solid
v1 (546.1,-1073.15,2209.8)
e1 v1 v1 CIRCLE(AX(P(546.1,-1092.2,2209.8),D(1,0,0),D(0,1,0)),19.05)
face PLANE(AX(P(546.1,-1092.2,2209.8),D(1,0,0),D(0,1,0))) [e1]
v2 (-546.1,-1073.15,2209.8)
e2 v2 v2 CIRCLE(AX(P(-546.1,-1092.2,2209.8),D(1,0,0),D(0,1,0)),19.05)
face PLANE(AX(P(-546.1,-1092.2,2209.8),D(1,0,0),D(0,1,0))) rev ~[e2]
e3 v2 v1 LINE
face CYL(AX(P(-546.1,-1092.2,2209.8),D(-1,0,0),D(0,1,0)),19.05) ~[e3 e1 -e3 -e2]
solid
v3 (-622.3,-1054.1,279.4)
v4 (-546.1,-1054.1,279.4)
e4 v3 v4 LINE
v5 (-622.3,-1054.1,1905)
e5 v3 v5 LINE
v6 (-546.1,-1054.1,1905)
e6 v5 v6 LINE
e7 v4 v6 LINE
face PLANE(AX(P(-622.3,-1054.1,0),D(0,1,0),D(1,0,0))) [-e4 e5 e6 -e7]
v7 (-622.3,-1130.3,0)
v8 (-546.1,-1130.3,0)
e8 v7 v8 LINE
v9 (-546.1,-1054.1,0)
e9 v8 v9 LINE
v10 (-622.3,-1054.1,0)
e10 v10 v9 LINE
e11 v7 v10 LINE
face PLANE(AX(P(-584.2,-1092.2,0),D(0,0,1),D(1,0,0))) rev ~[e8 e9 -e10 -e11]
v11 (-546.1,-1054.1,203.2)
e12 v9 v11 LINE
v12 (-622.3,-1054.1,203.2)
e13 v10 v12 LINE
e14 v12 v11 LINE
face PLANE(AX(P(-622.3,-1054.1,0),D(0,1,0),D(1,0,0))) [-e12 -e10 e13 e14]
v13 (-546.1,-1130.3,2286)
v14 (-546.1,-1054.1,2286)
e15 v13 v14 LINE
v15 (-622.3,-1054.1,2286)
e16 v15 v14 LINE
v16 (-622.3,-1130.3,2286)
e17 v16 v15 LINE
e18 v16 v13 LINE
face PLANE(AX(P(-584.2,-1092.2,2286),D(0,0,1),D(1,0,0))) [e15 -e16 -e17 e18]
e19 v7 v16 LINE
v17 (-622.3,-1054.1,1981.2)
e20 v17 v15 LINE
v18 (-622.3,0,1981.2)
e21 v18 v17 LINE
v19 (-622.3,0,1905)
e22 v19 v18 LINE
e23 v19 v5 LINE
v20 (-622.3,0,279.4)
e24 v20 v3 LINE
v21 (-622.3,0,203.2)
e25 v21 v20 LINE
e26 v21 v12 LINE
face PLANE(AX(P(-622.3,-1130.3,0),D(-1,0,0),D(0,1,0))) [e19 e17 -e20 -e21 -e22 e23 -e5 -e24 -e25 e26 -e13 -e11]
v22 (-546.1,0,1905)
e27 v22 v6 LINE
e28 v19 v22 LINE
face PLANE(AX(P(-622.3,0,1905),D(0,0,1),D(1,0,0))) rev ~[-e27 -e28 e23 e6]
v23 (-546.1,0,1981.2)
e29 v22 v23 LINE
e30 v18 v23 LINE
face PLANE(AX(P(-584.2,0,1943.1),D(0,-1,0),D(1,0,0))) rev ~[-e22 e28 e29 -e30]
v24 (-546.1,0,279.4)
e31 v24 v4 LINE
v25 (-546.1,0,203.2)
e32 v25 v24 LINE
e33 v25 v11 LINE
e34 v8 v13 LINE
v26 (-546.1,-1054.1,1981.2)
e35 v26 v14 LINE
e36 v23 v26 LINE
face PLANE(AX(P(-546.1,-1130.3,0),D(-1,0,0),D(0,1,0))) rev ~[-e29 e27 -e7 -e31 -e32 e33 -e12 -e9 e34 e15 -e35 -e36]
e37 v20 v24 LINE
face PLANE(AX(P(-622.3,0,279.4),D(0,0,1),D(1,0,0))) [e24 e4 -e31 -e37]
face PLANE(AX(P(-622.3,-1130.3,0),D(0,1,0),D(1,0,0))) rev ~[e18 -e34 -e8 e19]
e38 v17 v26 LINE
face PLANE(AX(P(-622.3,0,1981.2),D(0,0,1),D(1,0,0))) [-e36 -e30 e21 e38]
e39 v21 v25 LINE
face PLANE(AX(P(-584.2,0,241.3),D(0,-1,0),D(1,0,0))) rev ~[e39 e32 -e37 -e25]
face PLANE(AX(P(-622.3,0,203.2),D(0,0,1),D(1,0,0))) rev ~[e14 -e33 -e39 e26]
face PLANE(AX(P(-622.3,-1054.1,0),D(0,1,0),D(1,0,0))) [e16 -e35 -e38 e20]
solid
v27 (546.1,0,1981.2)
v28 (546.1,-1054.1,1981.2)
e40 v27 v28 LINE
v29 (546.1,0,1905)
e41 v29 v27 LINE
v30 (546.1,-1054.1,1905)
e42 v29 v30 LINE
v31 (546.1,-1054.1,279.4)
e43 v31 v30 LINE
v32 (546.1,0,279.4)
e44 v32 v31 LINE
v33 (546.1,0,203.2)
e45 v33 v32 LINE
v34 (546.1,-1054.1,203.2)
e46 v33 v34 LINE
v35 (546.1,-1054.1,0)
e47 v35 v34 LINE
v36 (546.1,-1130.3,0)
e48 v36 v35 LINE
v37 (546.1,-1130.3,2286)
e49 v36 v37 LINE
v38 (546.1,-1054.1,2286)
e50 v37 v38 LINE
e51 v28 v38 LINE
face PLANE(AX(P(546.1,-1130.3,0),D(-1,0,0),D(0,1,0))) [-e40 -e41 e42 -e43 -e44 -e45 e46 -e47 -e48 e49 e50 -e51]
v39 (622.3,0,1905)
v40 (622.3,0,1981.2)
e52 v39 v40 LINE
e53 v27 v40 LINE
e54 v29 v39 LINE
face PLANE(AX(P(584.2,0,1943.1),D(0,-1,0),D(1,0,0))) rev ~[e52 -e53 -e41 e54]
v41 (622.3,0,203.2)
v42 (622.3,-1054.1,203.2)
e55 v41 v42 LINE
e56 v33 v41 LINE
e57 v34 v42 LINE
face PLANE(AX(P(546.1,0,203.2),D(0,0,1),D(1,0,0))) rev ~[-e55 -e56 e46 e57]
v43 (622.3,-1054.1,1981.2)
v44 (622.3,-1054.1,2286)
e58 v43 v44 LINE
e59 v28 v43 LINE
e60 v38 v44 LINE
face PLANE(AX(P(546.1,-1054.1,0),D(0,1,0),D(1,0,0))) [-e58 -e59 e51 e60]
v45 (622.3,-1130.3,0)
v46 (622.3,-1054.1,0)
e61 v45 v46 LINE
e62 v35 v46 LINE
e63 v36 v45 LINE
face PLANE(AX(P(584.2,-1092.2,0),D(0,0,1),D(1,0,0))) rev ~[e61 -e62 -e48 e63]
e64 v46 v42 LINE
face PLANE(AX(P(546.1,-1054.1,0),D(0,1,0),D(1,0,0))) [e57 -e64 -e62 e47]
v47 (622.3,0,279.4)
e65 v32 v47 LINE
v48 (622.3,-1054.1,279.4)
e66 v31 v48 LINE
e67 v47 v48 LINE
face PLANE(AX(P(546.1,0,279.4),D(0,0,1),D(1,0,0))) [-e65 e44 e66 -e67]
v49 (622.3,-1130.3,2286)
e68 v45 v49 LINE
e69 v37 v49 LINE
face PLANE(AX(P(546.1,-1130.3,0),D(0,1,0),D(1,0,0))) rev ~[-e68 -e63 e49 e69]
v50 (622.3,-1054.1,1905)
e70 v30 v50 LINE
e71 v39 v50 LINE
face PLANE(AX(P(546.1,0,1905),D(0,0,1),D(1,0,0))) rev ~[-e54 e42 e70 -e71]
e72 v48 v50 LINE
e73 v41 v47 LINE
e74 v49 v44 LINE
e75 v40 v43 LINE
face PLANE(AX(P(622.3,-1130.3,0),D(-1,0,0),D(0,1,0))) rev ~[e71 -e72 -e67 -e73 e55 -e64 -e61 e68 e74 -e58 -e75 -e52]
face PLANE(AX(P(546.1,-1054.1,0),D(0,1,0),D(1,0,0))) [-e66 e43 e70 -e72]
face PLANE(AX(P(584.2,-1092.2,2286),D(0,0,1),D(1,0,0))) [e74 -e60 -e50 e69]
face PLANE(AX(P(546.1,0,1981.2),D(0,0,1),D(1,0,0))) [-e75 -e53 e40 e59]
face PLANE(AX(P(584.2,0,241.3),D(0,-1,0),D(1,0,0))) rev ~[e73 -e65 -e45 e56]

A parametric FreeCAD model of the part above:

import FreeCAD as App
import Part
import Sketcher
from FreeCAD import Vector
Q = App.Units.Quantity

doc = App.newDocument("Part")
body = doc.addObject("PartDesign::Body", "Body")

sketch1 = body.newObject("Sketcher::SketchObject", "Sketch")
sketch1.AttachmentSupport = (doc.getObject("XY_Plane"), [""])
sketch1.MapMode = "FlatFace"
sketch1.addGeometry([
    Part.LineSegment(Vector(-622, -1054, 0), Vector(-622, -1130, 0)),
    Part.LineSegment(Vector(-622, -1130, 0), Vector(-546, -1130, 0)),
    Part.LineSegment(Vector(-546, -1130, 0), Vector(-546, -1054, 0)),
    Part.LineSegment(Vector(-546, -1054, 0), Vector(-622, -1054, 0)),
], False)
sketch1.addConstraint([
    Sketcher.Constraint("Coincident", 0, 2, 1, 1),
    Sketcher.Constraint("Coincident", 1, 2, 2, 1),
    Sketcher.Constraint("Coincident", 2, 2, 3, 1),
    Sketcher.Constraint("Coincident", 3, 2, 0, 1),
    Sketcher.Constraint("Vertical", 0),
    Sketcher.Constraint("Horizontal", 1),
    Sketcher.Constraint("Vertical", 2),
    Sketcher.Constraint("Horizontal", 3),
    Sketcher.Constraint("Equal", 3, 0),
    Sketcher.Constraint("DistanceX", 1, 1, 1, 2, Q("3 in")),
    Sketcher.Constraint("DistanceX", 0, 2, -1, 1, Q("24.5 in")),
    Sketcher.Constraint("DistanceY", 0, 2, -1, 1, Q("44.5 in")),
])
pad1 = body.newObject("PartDesign::Pad", "Pad")
pad1.Profile = sketch1
pad1.Length = Q("90 in")

sketch2 = body.newObject("Sketcher::SketchObject", "Sketch001")
sketch2.AttachmentSupport = (doc.getObject("XZ_Plane"), [""])
sketch2.MapMode = "FlatFace"
sketch2.addGeometry([
    Part.LineSegment(Vector(-622, 1981, 0), Vector(-622, 1905, 0)),
    Part.LineSegment(Vector(-622, 1905, 0), Vector(-546, 1905, 0)),
    Part.LineSegment(Vector(-546, 1905, 0), Vector(-546, 1981, 0)),
    Part.LineSegment(Vector(-546, 1981, 0), Vector(-622, 1981, 0)),
    Part.LineSegment(Vector(-622, 279, 0), Vector(-622, 203, 0)),
    Part.LineSegment(Vector(-622, 203, 0), Vector(-546, 203, 0)),
    Part.LineSegment(Vector(-546, 203, 0), Vector(-546, 279, 0)),
    Part.LineSegment(Vector(-546, 279, 0), Vector(-622, 279, 0)),
], False)
sketch2.addConstraint([
    Sketcher.Constraint("Coincident", 0, 2, 1, 1),
    Sketcher.Constraint("Coincident", 1, 2, 2, 1),
    Sketcher.Constraint("Coincident", 2, 2, 3, 1),
    Sketcher.Constraint("Coincident", 3, 2, 0, 1),
    Sketcher.Constraint("Coincident", 4, 2, 5, 1),
    Sketcher.Constraint("Coincident", 5, 2, 6, 1),
    Sketcher.Constraint("Coincident", 6, 2, 7, 1),
    Sketcher.Constraint("Coincident", 7, 2, 4, 1),
    Sketcher.Constraint("Vertical", 0),
    Sketcher.Constraint("Horizontal", 1),
    Sketcher.Constraint("Vertical", 2),
    Sketcher.Constraint("Horizontal", 3),
    Sketcher.Constraint("Vertical", 4),
    Sketcher.Constraint("Horizontal", 5),
    Sketcher.Constraint("Vertical", 6),
    Sketcher.Constraint("Horizontal", 7),
    Sketcher.Constraint("Vertical", 3, 2, 4, 2),
    Sketcher.Constraint("Vertical", 2, 2, 5, 2),
    Sketcher.Constraint("Equal", 7, 0),
    Sketcher.Constraint("Equal", 2, 4),
    Sketcher.Constraint("DistanceX", 1, 1, 1, 2, Q("3 in")),
    Sketcher.Constraint("DistanceY", -1, 1, 0, 2, Q("75 in")),
    Sketcher.Constraint("DistanceY", -1, 1, 4, 2, Q("8 in")),
    Sketcher.Constraint("DistanceX", 0, 2, -1, 1, Q("24.5 in")),
])
pad2 = body.newObject("PartDesign::Pad", "Pad001")
pad2.Profile = sketch2
pad2.Type = "UpToLast"
body2 = doc.addObject("PartDesign::Body", "Body001")

sketch3 = body2.newObject("Sketcher::SketchObject", "Sketch002")
sketch3.AttachmentSupport = (doc.getObject("XY_Plane001"), [""])
sketch3.MapMode = "FlatFace"
sketch3.addGeometry([
    Part.LineSegment(Vector(546, -1054, 0), Vector(546, -1130, 0)),
    Part.LineSegment(Vector(546, -1130, 0), Vector(622, -1130, 0)),
    Part.LineSegment(Vector(622, -1130, 0), Vector(622, -1054, 0)),
    Part.LineSegment(Vector(622, -1054, 0), Vector(546, -1054, 0)),
], False)
sketch3.addConstraint([
    Sketcher.Constraint("Coincident", 0, 2, 1, 1),
    Sketcher.Constraint("Coincident", 1, 2, 2, 1),
    Sketcher.Constraint("Coincident", 2, 2, 3, 1),
    Sketcher.Constraint("Coincident", 3, 2, 0, 1),
    Sketcher.Constraint("Vertical", 0),
    Sketcher.Constraint("Horizontal", 1),
    Sketcher.Constraint("Vertical", 2),
    Sketcher.Constraint("Horizontal", 3),
    Sketcher.Constraint("Equal", 3, 0),
    Sketcher.Constraint("DistanceX", 1, 1, 1, 2, Q("3 in")),
    Sketcher.Constraint("DistanceX", -1, 1, 0, 2, Q("21.5 in")),
    Sketcher.Constraint("DistanceY", 0, 2, -1, 1, Q("44.5 in")),
])
pad3 = body2.newObject("PartDesign::Pad", "Pad002")
pad3.Profile = sketch3
pad3.Length = Q("90 in")

sketch4 = body2.newObject("Sketcher::SketchObject", "Sketch003")
sketch4.AttachmentSupport = (doc.getObject("XZ_Plane001"), [""])
sketch4.MapMode = "FlatFace"
sketch4.addGeometry([
    Part.LineSegment(Vector(546, 1981, 0), Vector(546, 1905, 0)),
    Part.LineSegment(Vector(546, 1905, 0), Vector(622, 1905, 0)),
    Part.LineSegment(Vector(622, 1905, 0), Vector(622, 1981, 0)),
    Part.LineSegment(Vector(622, 1981, 0), Vector(546, 1981, 0)),
    Part.LineSegment(Vector(546, 279, 0), Vector(546, 203, 0)),
    Part.LineSegment(Vector(546, 203, 0), Vector(622, 203, 0)),
    Part.LineSegment(Vector(622, 203, 0), Vector(622, 279, 0)),
    Part.LineSegment(Vector(622, 279, 0), Vector(546, 279, 0)),
], False)
sketch4.addConstraint([
    Sketcher.Constraint("Coincident", 0, 2, 1, 1),
    Sketcher.Constraint("Coincident", 1, 2, 2, 1),
    Sketcher.Constraint("Coincident", 2, 2, 3, 1),
    Sketcher.Constraint("Coincident", 3, 2, 0, 1),
    Sketcher.Constraint("Coincident", 4, 2, 5, 1),
    Sketcher.Constraint("Coincident", 5, 2, 6, 1),
    Sketcher.Constraint("Coincident", 6, 2, 7, 1),
    Sketcher.Constraint("Coincident", 7, 2, 4, 1),
    Sketcher.Constraint("Vertical", 0),
    Sketcher.Constraint("Horizontal", 1),
    Sketcher.Constraint("Vertical", 2),
    Sketcher.Constraint("Horizontal", 3),
    Sketcher.Constraint("Vertical", 4),
    Sketcher.Constraint("Horizontal", 5),
    Sketcher.Constraint("Vertical", 6),
    Sketcher.Constraint("Horizontal", 7),
    Sketcher.Constraint("Vertical", 3, 2, 4, 2),
    Sketcher.Constraint("Vertical", 2, 2, 5, 2),
    Sketcher.Constraint("Equal", 7, 0),
    Sketcher.Constraint("Equal", 2, 4),
    Sketcher.Constraint("DistanceX", 1, 1, 1, 2, Q("3 in")),
    Sketcher.Constraint("DistanceY", -1, 1, 0, 2, Q("75 in")),
    Sketcher.Constraint("DistanceY", -1, 1, 4, 2, Q("8 in")),
    Sketcher.Constraint("DistanceX", -1, 1, 0, 2, Q("21.5 in")),
])
pad4 = body2.newObject("PartDesign::Pad", "Pad003")
pad4.Profile = sketch4
pad4.Type = "UpToLast"
body3 = doc.addObject("PartDesign::Body", "Body002")

sketch5 = body3.newObject("Sketcher::SketchObject", "Sketch004")
sketch5.AttachmentSupport = (doc.getObject("YZ_Plane002"), [""])
sketch5.MapMode = "FlatFace"
sketch5.AttachmentOffset = App.Placement(Vector(0, 0, -21.5 * 25.4), App.Rotation())
sketch5.addGeometry(Part.Circle(Vector(-1092, 2210, 0), Vector(0, 0, 1), 19), False)
sketch5.addConstraint([
    Sketcher.Constraint("Diameter", 0, Q("1.5 in")),
    Sketcher.Constraint("DistanceX", 0, 3, -1, 1, Q("43 in")),
    Sketcher.Constraint("DistanceY", -1, 1, 0, 3, Q("87 in")),
])
pad5 = body3.newObject("PartDesign::Pad", "Pad004")
pad5.Profile = sketch5
pad5.Length = Q("43 in")

doc.recompute()
